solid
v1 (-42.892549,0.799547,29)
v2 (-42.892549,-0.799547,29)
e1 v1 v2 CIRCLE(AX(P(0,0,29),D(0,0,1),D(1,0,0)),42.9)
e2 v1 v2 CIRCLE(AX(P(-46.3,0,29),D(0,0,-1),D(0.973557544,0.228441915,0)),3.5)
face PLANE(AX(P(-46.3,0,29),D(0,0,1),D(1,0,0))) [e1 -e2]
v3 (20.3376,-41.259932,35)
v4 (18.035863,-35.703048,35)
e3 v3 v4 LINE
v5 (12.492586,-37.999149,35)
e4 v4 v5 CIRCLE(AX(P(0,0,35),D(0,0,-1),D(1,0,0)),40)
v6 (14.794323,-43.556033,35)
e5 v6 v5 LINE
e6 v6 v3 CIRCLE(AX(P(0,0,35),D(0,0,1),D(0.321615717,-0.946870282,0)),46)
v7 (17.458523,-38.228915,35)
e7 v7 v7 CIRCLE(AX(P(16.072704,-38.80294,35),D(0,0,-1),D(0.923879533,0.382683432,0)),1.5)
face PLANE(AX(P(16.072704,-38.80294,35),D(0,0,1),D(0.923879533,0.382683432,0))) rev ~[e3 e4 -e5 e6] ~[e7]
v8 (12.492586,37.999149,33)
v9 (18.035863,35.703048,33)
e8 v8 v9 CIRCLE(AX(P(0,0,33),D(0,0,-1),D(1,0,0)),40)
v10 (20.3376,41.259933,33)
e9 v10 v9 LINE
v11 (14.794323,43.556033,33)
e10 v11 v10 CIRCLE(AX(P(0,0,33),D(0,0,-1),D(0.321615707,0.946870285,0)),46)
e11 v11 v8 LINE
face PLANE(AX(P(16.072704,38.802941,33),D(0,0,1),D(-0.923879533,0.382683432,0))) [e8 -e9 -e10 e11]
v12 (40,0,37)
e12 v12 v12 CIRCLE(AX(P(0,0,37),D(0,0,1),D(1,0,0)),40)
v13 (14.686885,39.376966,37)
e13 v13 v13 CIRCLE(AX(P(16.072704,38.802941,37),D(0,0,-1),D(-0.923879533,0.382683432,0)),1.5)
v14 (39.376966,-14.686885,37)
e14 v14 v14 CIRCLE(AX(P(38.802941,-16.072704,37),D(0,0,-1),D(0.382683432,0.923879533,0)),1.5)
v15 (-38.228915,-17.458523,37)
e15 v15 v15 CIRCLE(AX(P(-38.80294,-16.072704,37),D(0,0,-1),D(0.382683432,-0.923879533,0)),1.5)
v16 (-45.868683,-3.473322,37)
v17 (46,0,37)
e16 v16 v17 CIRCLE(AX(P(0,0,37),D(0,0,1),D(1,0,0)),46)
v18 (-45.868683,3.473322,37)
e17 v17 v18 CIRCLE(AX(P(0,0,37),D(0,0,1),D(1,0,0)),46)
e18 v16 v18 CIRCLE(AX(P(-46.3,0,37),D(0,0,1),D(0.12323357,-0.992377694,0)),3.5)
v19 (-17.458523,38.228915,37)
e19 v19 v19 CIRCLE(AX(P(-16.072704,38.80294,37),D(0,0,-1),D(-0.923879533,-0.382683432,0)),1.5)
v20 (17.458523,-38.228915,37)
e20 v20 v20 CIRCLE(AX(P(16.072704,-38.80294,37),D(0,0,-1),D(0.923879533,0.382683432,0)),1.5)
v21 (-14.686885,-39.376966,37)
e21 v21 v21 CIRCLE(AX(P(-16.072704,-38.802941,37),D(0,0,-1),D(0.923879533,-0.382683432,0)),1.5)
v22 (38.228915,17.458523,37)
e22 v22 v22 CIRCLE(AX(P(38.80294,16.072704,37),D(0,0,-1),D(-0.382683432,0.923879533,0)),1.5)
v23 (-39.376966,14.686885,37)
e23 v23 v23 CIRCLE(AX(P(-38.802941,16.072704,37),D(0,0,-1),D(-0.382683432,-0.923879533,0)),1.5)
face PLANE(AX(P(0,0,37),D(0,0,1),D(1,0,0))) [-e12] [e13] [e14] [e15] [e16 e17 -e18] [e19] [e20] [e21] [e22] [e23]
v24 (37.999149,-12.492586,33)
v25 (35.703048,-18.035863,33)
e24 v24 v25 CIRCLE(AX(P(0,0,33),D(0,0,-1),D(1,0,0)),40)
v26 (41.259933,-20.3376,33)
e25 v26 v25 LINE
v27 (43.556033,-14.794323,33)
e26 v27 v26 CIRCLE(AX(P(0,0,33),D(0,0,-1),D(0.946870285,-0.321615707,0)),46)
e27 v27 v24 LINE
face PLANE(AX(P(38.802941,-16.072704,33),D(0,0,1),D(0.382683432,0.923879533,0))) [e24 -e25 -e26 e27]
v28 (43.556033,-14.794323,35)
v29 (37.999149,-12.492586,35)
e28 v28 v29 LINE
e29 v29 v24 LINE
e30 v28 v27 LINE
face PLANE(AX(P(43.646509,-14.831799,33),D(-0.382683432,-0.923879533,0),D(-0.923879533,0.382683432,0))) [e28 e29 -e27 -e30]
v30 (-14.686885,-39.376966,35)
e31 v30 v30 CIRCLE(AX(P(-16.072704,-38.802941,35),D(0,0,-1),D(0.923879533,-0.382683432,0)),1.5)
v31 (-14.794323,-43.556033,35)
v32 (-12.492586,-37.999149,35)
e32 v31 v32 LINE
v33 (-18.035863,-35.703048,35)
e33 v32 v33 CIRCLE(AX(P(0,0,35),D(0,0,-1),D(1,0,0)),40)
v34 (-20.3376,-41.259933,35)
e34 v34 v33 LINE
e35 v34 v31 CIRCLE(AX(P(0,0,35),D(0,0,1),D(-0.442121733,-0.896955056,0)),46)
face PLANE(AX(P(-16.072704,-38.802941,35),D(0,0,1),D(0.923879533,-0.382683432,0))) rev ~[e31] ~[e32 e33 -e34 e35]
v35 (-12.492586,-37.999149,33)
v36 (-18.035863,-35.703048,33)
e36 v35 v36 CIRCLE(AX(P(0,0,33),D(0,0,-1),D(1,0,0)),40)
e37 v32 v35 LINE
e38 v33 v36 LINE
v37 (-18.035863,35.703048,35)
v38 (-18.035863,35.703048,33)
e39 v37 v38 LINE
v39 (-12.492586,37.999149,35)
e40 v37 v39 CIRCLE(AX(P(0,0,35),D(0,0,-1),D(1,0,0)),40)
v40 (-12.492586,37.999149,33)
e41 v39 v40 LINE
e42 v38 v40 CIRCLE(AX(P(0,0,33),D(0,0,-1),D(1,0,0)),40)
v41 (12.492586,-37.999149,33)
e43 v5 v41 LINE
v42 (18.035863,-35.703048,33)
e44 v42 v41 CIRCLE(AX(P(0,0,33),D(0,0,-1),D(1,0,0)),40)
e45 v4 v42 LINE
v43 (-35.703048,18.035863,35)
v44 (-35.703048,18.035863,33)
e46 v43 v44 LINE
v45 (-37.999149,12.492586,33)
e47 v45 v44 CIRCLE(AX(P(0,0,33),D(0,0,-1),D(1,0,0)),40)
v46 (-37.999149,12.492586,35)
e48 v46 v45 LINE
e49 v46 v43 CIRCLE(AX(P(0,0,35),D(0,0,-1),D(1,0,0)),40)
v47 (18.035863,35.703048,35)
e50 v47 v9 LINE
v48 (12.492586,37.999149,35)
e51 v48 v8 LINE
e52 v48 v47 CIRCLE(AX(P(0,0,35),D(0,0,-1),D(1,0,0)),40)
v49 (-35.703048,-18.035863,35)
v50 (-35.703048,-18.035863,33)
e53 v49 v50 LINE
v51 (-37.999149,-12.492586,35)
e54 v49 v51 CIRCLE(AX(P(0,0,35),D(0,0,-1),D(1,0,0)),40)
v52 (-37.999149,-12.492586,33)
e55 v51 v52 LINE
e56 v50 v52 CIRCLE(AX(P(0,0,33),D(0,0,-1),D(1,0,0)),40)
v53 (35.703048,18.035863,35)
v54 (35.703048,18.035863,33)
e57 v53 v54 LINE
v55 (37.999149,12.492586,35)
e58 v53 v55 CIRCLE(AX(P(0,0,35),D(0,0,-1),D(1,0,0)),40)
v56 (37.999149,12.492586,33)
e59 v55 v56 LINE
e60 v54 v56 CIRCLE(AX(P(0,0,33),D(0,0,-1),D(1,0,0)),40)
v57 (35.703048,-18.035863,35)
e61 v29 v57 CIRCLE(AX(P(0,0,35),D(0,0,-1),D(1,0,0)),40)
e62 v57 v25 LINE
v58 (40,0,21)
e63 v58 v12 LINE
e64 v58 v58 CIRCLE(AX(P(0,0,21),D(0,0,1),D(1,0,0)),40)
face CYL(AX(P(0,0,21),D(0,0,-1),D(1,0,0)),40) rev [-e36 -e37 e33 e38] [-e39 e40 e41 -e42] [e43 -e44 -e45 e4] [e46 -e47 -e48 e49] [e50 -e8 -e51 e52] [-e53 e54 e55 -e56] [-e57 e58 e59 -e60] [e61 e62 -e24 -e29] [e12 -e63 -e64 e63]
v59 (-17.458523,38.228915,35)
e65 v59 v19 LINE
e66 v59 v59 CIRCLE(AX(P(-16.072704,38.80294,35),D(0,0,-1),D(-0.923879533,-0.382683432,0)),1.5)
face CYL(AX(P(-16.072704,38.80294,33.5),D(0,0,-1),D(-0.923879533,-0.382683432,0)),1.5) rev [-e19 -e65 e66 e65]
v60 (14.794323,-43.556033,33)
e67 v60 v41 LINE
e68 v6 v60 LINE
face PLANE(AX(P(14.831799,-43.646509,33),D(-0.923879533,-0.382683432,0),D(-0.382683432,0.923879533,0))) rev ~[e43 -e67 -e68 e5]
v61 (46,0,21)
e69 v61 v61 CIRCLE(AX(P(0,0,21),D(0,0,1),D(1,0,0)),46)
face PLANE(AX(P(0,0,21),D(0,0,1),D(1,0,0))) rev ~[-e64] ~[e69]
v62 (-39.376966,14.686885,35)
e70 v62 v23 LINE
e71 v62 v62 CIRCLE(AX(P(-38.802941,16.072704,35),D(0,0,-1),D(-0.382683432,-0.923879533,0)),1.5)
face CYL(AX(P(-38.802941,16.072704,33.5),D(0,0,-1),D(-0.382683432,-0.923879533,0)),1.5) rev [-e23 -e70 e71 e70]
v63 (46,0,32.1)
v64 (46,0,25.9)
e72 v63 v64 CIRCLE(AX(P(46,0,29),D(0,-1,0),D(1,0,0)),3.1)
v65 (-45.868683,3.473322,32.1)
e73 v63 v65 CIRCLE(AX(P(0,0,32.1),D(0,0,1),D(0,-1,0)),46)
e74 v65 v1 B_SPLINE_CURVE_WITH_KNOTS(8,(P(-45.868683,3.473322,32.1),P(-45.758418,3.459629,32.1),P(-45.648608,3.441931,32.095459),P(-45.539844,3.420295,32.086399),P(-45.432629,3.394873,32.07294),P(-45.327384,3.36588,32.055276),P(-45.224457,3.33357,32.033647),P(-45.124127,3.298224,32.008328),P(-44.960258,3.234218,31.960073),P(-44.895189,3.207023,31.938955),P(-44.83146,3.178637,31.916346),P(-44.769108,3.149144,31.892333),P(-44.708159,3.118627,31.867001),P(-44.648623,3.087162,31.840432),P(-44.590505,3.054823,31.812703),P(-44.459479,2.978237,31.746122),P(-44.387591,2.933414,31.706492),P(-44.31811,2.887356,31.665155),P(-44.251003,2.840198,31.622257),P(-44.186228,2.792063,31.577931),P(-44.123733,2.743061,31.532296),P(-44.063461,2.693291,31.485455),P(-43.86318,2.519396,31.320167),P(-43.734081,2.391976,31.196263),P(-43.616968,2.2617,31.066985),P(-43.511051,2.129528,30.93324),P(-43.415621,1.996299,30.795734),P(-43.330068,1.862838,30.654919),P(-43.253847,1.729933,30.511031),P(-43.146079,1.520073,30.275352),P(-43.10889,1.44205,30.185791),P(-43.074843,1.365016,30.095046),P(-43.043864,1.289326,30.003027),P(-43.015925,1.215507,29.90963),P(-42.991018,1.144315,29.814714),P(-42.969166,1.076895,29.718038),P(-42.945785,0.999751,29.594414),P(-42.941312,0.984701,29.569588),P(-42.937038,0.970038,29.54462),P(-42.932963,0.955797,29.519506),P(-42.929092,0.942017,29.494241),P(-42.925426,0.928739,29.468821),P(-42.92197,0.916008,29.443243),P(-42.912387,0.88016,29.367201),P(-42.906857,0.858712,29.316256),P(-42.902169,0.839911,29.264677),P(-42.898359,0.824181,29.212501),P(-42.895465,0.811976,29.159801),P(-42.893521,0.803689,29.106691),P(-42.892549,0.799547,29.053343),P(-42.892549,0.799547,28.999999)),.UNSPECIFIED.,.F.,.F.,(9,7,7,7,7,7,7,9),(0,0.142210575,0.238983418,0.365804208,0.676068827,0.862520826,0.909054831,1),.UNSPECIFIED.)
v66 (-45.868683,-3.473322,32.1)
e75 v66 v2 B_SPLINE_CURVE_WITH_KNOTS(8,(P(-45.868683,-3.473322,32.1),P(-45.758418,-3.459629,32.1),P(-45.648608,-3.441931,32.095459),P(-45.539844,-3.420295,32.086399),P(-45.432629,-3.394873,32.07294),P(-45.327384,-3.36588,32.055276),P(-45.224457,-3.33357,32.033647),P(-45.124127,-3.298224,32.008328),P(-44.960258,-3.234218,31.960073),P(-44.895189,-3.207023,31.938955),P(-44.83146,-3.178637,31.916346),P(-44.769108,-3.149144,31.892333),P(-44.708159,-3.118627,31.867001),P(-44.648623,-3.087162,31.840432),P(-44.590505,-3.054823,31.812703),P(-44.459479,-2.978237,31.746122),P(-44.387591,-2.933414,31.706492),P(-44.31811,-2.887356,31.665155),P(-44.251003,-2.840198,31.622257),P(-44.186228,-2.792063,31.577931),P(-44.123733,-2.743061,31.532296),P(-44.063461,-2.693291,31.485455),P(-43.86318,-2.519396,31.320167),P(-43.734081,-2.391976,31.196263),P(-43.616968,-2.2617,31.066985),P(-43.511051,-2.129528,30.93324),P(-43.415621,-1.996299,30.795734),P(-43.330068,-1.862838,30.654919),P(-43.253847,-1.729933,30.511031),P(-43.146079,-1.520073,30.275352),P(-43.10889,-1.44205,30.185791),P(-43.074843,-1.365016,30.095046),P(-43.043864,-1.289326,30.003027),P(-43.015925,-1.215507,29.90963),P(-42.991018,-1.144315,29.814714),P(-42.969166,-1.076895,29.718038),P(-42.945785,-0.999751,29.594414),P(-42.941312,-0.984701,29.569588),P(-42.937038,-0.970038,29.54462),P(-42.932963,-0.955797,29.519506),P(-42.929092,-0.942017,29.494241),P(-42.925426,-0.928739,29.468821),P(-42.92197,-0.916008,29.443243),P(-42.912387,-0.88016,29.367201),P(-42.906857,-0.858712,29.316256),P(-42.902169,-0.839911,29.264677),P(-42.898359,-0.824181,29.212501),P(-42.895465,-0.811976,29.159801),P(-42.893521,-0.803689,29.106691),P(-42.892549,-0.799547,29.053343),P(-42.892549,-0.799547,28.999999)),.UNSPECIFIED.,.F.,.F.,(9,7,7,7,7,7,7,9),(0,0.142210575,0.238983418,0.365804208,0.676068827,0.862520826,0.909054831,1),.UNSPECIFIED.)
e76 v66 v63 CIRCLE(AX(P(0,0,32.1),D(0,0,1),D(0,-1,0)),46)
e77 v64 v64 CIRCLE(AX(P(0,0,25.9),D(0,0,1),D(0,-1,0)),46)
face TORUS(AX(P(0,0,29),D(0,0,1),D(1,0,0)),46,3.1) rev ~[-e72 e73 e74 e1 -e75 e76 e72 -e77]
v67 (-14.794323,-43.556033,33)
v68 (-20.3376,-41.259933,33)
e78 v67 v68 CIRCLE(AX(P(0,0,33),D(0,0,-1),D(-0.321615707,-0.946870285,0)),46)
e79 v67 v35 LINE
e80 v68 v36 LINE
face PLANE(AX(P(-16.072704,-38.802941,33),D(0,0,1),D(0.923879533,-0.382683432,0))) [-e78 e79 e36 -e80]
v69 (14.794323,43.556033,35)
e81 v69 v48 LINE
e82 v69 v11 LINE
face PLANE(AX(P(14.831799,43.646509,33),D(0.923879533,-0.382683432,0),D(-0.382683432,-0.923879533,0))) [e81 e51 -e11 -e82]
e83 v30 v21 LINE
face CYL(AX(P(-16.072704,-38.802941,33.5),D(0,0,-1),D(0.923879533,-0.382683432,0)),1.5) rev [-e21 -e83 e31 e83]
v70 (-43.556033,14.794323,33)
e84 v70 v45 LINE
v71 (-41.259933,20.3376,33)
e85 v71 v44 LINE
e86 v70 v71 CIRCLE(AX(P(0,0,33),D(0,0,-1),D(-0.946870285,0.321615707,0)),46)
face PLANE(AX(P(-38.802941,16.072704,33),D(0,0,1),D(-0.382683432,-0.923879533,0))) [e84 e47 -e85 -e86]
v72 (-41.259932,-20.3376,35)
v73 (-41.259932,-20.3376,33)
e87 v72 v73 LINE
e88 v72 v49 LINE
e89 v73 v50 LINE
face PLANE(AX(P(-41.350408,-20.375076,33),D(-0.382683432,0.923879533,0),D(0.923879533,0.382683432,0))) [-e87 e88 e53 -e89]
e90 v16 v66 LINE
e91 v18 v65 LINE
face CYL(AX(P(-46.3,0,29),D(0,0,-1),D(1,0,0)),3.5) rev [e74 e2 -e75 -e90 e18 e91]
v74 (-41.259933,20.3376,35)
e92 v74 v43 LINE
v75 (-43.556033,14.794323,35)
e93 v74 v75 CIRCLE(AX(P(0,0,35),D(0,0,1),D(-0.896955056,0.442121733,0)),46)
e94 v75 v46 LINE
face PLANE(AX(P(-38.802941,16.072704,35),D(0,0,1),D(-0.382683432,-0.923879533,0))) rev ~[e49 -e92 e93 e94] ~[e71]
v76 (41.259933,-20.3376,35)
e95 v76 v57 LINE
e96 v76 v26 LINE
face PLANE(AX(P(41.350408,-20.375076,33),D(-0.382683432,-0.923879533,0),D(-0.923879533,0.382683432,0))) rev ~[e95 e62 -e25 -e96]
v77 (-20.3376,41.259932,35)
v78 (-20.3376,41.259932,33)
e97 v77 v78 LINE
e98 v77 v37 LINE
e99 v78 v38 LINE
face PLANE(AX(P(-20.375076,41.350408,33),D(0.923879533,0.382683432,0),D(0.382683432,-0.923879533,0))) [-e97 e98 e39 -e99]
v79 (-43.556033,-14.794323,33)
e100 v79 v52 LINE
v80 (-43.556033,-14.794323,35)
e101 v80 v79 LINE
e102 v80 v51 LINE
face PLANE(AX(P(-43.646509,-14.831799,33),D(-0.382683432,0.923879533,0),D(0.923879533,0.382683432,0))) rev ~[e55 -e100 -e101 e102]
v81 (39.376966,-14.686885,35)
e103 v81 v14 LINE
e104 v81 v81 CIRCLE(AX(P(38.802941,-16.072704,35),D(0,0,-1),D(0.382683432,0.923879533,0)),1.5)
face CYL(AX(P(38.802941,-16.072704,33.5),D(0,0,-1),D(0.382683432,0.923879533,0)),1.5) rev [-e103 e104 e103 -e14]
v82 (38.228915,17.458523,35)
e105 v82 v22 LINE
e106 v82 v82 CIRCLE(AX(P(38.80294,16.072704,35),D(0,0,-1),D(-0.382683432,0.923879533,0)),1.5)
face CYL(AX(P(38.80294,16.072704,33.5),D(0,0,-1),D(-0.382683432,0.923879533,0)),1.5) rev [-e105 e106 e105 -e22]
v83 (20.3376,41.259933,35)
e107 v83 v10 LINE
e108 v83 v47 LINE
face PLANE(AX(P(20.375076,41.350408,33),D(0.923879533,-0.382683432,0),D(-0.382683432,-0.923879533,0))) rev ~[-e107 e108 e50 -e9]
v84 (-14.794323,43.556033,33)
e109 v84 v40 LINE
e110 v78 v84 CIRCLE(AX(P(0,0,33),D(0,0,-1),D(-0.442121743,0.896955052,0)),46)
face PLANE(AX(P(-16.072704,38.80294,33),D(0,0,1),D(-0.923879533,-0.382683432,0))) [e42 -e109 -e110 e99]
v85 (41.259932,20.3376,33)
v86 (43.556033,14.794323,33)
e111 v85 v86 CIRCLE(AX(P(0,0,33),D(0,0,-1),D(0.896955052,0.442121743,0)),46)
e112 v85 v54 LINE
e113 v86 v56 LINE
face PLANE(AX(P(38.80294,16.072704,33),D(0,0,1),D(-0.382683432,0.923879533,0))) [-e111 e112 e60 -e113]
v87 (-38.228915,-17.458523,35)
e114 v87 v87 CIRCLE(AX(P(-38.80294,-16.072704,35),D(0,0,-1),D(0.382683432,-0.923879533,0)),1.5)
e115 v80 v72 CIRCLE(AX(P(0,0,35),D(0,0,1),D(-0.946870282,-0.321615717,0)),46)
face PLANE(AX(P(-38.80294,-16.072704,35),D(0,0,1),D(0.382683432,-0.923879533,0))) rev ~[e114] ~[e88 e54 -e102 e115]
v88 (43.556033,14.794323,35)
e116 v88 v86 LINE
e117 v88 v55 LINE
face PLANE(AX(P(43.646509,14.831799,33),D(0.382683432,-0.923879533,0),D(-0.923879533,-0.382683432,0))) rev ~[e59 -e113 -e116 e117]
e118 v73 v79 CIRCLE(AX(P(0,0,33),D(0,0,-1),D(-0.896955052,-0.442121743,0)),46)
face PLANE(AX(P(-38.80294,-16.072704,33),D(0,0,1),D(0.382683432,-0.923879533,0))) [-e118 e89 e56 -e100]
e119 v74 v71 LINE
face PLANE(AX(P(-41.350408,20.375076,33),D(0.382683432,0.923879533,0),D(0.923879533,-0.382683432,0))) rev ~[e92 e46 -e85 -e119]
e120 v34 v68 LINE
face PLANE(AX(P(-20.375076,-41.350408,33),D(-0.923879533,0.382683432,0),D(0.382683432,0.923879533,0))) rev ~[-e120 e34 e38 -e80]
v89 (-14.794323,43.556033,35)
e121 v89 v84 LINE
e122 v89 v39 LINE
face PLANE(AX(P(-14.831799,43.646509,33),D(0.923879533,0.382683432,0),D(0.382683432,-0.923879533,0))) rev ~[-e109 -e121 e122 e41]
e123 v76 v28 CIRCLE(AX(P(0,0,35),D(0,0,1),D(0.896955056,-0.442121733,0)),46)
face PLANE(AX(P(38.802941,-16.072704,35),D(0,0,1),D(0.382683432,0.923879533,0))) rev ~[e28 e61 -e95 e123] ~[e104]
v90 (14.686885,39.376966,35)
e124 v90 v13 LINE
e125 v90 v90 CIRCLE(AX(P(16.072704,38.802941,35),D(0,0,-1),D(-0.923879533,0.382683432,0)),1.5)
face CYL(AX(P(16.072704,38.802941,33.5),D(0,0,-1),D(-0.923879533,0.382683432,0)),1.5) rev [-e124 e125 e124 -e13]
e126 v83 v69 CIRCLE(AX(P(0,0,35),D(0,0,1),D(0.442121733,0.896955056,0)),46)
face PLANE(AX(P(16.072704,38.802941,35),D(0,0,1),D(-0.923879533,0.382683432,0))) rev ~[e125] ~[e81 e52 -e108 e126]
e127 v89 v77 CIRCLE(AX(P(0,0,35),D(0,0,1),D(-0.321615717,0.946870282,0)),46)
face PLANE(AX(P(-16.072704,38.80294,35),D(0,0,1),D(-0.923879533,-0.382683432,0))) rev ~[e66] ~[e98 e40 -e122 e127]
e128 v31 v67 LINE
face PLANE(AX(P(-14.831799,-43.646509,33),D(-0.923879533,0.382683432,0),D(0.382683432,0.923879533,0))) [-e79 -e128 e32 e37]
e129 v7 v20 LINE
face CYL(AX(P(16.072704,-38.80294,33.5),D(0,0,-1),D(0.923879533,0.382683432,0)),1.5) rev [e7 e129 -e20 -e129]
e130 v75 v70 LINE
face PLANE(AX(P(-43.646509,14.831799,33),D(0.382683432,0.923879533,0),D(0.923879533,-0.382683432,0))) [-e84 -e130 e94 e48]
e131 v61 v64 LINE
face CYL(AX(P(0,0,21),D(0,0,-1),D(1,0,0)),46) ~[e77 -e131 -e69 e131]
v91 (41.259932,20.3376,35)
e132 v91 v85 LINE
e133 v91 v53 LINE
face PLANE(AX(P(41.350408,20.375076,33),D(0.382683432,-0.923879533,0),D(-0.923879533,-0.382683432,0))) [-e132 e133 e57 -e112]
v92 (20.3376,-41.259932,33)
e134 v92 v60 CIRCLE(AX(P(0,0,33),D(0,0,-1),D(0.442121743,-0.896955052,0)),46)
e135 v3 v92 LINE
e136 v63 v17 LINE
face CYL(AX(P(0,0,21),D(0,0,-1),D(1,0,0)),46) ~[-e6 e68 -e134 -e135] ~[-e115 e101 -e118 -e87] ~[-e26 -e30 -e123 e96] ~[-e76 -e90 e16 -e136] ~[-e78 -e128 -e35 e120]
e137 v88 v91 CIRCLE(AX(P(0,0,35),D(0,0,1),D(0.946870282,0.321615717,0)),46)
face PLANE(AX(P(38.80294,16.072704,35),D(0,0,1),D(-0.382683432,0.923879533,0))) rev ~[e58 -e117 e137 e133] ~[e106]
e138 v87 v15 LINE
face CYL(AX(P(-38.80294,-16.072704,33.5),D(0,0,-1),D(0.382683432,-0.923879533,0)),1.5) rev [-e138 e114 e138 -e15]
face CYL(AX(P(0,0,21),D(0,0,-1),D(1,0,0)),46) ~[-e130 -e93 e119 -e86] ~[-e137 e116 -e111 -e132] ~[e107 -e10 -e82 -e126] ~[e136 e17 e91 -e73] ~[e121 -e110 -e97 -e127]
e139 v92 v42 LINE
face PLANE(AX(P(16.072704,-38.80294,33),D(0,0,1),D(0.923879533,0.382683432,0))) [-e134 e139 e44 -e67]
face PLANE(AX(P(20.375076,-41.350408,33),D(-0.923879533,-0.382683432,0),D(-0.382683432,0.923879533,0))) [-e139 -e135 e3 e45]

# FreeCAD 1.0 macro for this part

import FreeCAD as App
import Part
import Sketcher
from FreeCAD import Vector
Q = App.Units.Quantity


def add_polygon(sketch, points):
    """Adds a closed chain of lines whose ends are joined by coincident constraints."""
    first, n = sketch.GeometryCount, len(points)
    for a, b in zip(points, points[1:] + points[:1]):
        sketch.addGeometry(Part.LineSegment(App.Vector(*a, 0), App.Vector(*b, 0)), False)
    for i in range(n):
        sketch.addConstraint(Sketcher.Constraint("Coincident", first + i, 2, first + (i + 1) % n, 1))

doc = App.newDocument("Part")
body = doc.addObject("PartDesign::Body", "Body")

# Sketch on XY plane
sketch1 = body.newObject("Sketcher::SketchObject", "Sketch")
sketch1.AttachmentSupport = (doc.getObject("XY_Plane"), [""])
sketch1.MapMode = "FlatFace"
add_polygon(sketch1, [(0, 8), (0, 0), (6, 0), (6, 8)])  # lines 0-3
sketch1.addConstraint(Sketcher.Constraint("Vertical", 0))
sketch1.addConstraint(Sketcher.Constraint("Horizontal", 1))
sketch1.addConstraint(Sketcher.Constraint("Vertical", 2))
sketch1.addConstraint(Sketcher.Constraint("Horizontal", 3))
sketch1.addConstraint(Sketcher.Constraint("Coincident", 0, 2, -1, 1))
sketch1.addConstraint(Sketcher.Constraint("DistanceX", 1, 1, 1, 2, Q("6 mm")))
sketch1.addConstraint(Sketcher.Constraint("DistanceY", 0, 2, 0, 1, Q("8 mm")))
pad1 = body.newObject("PartDesign::Pad", "Pad")
pad1.Profile = sketch1
pad1.Length = 2
body2 = doc.addObject("PartDesign::Body", "Body001")
doc.recompute()

body.Placement = App.Placement(Vector(30.405592, -34.648232, 33), App.Rotation(Vector(0, 0, 1), 45))
boolean = body2.newObject("PartDesign::Boolean", "Boolean")
boolean.Type = "Fuse"
boolean.addObjects([body])
body3 = doc.addObject("PartDesign::Body", "Body002")

# Sketch on XY plane
sketch2 = body3.newObject("Sketcher::SketchObject", "Sketch001")
sketch2.AttachmentSupport = (doc.getObject("XY_Plane002"), [""])
sketch2.MapMode = "FlatFace"
sketch2.AttachmentOffset = App.Placement(Vector(0, 0, 33), App.Rotation())
add_polygon(sketch2, [(38, -3), (46, -3), (46, 3), (38, 3)])  # lines 0-3
sketch2.addConstraint(Sketcher.Constraint("Horizontal", 0))
sketch2.addConstraint(Sketcher.Constraint("Vertical", 1))
sketch2.addConstraint(Sketcher.Constraint("Horizontal", 2))
sketch2.addConstraint(Sketcher.Constraint("Vertical", 3))
sketch2.addConstraint(Sketcher.Constraint("DistanceX", 0, 1, 0, 2, Q("8 mm")))
sketch2.addConstraint(Sketcher.Constraint("DistanceY", 1, 1, 1, 2, Q("6 mm")))
sketch2.addConstraint(Sketcher.Constraint("DistanceX", -1, 1, 0, 2, Q("46 mm")))
sketch2.addConstraint(Sketcher.Constraint("DistanceY", 0, 2, -1, 1, Q("3 mm")))
pad2 = body3.newObject("PartDesign::Pad", "Pad001")
pad2.Profile = sketch2
pad2.Length = 2
body4 = doc.addObject("PartDesign::Body", "Body003")

# Sketch on XY plane
sketch3 = body4.newObject("Sketcher::SketchObject", "Sketch002")
sketch3.AttachmentSupport = (doc.getObject("XY_Plane003"), [""])
sketch3.MapMode = "FlatFace"
sketch3.AttachmentOffset = App.Placement(Vector(0, 0, 33), App.Rotation())
add_polygon(sketch3, [(-3, -38), (-3, -46), (3, -46), (3, -38)])  # lines 0-3
sketch3.addConstraint(Sketcher.Constraint("Vertical", 0))
sketch3.addConstraint(Sketcher.Constraint("Horizontal", 1))
sketch3.addConstraint(Sketcher.Constraint("Vertical", 2))
sketch3.addConstraint(Sketcher.Constraint("Horizontal", 3))
sketch3.addConstraint(Sketcher.Constraint("DistanceX", 1, 1, 1, 2, Q("6 mm")))
sketch3.addConstraint(Sketcher.Constraint("DistanceY", 0, 2, 0, 1, Q("8 mm")))
sketch3.addConstraint(Sketcher.Constraint("DistanceX", 0, 2, -1, 1, Q("3 mm")))
sketch3.addConstraint(Sketcher.Constraint("DistanceY", 0, 2, -1, 1, Q("46 mm")))
pad3 = body4.newObject("PartDesign::Pad", "Pad002")
pad3.Profile = sketch3
pad3.Length = 2
body5 = doc.addObject("PartDesign::Body", "Body004")

# Sketch on XY plane
sketch4 = body5.newObject("Sketcher::SketchObject", "Sketch003")
sketch4.AttachmentSupport = (doc.getObject("XY_Plane004"), [""])
sketch4.MapMode = "FlatFace"
add_polygon(sketch4, [(0, 8), (0, 0), (6, 0), (6, 8)])  # lines 0-3
sketch4.addConstraint(Sketcher.Constraint("Vertical", 0))
sketch4.addConstraint(Sketcher.Constraint("Horizontal", 1))
sketch4.addConstraint(Sketcher.Constraint("Vertical", 2))
sketch4.addConstraint(Sketcher.Constraint("Horizontal", 3))
sketch4.addConstraint(Sketcher.Constraint("Coincident", 0, 2, -1, 1))
sketch4.addConstraint(Sketcher.Constraint("DistanceX", 1, 1, 1, 2, Q("6 mm")))
sketch4.addConstraint(Sketcher.Constraint("DistanceY", 0, 2, 0, 1, Q("8 mm")))
pad4 = body5.newObject("PartDesign::Pad", "Pad003")
pad4.Profile = sketch4
pad4.Length = 2
body6 = doc.addObject("PartDesign::Body", "Body005")
doc.recompute()

body5.Placement = App.Placement(Vector(34.648232, 30.405592, 33), App.Rotation(Vector(0, 0, 1), 135))
boolean2 = body6.newObject("PartDesign::Boolean", "Boolean001")
boolean2.Type = "Fuse"
boolean2.addObjects([body5])
body7 = doc.addObject("PartDesign::Body", "Body006")

# Sketch on XY plane
sketch5 = body7.newObject("Sketcher::SketchObject", "Sketch004")
sketch5.AttachmentSupport = (doc.getObject("XY_Plane006"), [""])
sketch5.MapMode = "FlatFace"
sketch5.AttachmentOffset = App.Placement(Vector(0, 0, 33), App.Rotation())
add_polygon(sketch5, [(3, 38), (3, 46), (-3, 46), (-3, 38)])  # lines 0-3
sketch5.addConstraint(Sketcher.Constraint("Vertical", 0))
sketch5.addConstraint(Sketcher.Constraint("Horizontal", 1))
sketch5.addConstraint(Sketcher.Constraint("Vertical", 2))
sketch5.addConstraint(Sketcher.Constraint("Horizontal", 3))
sketch5.addConstraint(Sketcher.Constraint("DistanceX", 1, 2, 1, 1, Q("6 mm")))
sketch5.addConstraint(Sketcher.Constraint("DistanceY", 0, 1, 0, 2, Q("8 mm")))
sketch5.addConstraint(Sketcher.Constraint("DistanceX", -1, 1, 0, 2, Q("3 mm")))
sketch5.addConstraint(Sketcher.Constraint("DistanceY", -1, 1, 0, 2, Q("46 mm")))
pad5 = body7.newObject("PartDesign::Pad", "Pad004")
pad5.Profile = sketch5
pad5.Length = 2
body8 = doc.addObject("PartDesign::Body", "Body007")

# Sketch on XY plane
sketch6 = body8.newObject("Sketcher::SketchObject", "Sketch005")
sketch6.AttachmentSupport = (doc.getObject("XY_Plane007"), [""])
sketch6.MapMode = "FlatFace"
add_polygon(sketch6, [(0, 8), (0, 0), (6, 0), (6, 8)])  # lines 0-3
sketch6.addConstraint(Sketcher.Constraint("Vertical", 0))
sketch6.addConstraint(Sketcher.Constraint("Horizontal", 1))
sketch6.addConstraint(Sketcher.Constraint("Vertical", 2))
sketch6.addConstraint(Sketcher.Constraint("Horizontal", 3))
sketch6.addConstraint(Sketcher.Constraint("Coincident", 0, 2, -1, 1))
sketch6.addConstraint(Sketcher.Constraint("DistanceX", 1, 1, 1, 2, Q("6 mm")))
sketch6.addConstraint(Sketcher.Constraint("DistanceY", 0, 2, 0, 1, Q("8 mm")))
pad6 = body8.newObject("PartDesign::Pad", "Pad005")
pad6.Profile = sketch6
pad6.Length = 2
body9 = doc.addObject("PartDesign::Body", "Body008")
doc.recompute()

body8.Placement = App.Placement(Vector(-30.405592, 34.648232, 33), App.Rotation(Vector(0, 0, 1), 225))
boolean3 = body9.newObject("PartDesign::Boolean", "Boolean002")
boolean3.Type = "Fuse"
boolean3.addObjects([body8])
body10 = doc.addObject("PartDesign::Body", "Body009")

# Sketch on XY plane
sketch7 = body10.newObject("Sketcher::SketchObject", "Sketch006")
sketch7.AttachmentSupport = (doc.getObject("XY_Plane009"), [""])
sketch7.MapMode = "FlatFace"
sketch7.AttachmentOffset = App.Placement(Vector(0, 0, 33), App.Rotation())
add_polygon(sketch7, [(-38, 3), (-46, 3), (-46, -3), (-38, -3)])  # lines 0-3
sketch7.addConstraint(Sketcher.Constraint("Horizontal", 0))
sketch7.addConstraint(Sketcher.Constraint("Vertical", 1))
sketch7.addConstraint(Sketcher.Constraint("Horizontal", 2))
sketch7.addConstraint(Sketcher.Constraint("Vertical", 3))
sketch7.addConstraint(Sketcher.Constraint("DistanceX", 0, 2, 0, 1, Q("8 mm")))
sketch7.addConstraint(Sketcher.Constraint("DistanceY", 1, 2, 1, 1, Q("6 mm")))
sketch7.addConstraint(Sketcher.Constraint("DistanceX", 0, 2, -1, 1, Q("46 mm")))
sketch7.addConstraint(Sketcher.Constraint("DistanceY", -1, 1, 0, 2, Q("3 mm")))
pad7 = body10.newObject("PartDesign::Pad", "Pad006")
pad7.Profile = sketch7
pad7.Length = 2
body11 = doc.addObject("PartDesign::Body", "Body010")

# Sketch on XY plane
sketch8 = body11.newObject("Sketcher::SketchObject", "Sketch007")
sketch8.AttachmentSupport = (doc.getObject("XY_Plane010"), [""])
sketch8.MapMode = "FlatFace"
add_polygon(sketch8, [(0, 8), (0, 0), (6, 0), (6, 8)])  # lines 0-3
sketch8.addConstraint(Sketcher.Constraint("Vertical", 0))
sketch8.addConstraint(Sketcher.Constraint("Horizontal", 1))
sketch8.addConstraint(Sketcher.Constraint("Vertical", 2))
sketch8.addConstraint(Sketcher.Constraint("Horizontal", 3))
sketch8.addConstraint(Sketcher.Constraint("Coincident", 0, 2, -1, 1))
sketch8.addConstraint(Sketcher.Constraint("DistanceX", 1, 1, 1, 2, Q("6 mm")))
sketch8.addConstraint(Sketcher.Constraint("DistanceY", 0, 2, 0, 1, Q("8 mm")))
pad8 = body11.newObject("PartDesign::Pad", "Pad007")
pad8.Profile = sketch8
pad8.Length = 2
body12 = doc.addObject("PartDesign::Body", "Body011")
body12.AllowCompound = True
doc.recompute()

body11.Placement = App.Placement(Vector(-34.648232, -30.405592, 33), App.Rotation(Vector(0, 0, -1), 45))
boolean4 = body12.newObject("PartDesign::Boolean", "Boolean003")
boolean4.Type = "Fuse"
boolean4.addObjects([body11])
doc.recompute()

boolean5 = body12.newObject("PartDesign::Boolean", "Boolean004")
boolean5.Type = "Fuse"
boolean5.addObjects([body2])
doc.recompute()

boolean6 = body12.newObject("PartDesign::Boolean", "Boolean005")
boolean6.Type = "Fuse"
boolean6.addObjects([body3])
doc.recompute()

boolean7 = body12.newObject("PartDesign::Boolean", "Boolean006")
boolean7.Type = "Fuse"
boolean7.addObjects([body4])
doc.recompute()

boolean8 = body12.newObject("PartDesign::Boolean", "Boolean007")
boolean8.Type = "Fuse"
boolean8.addObjects([body6])
doc.recompute()

boolean9 = body12.newObject("PartDesign::Boolean", "Boolean008")
boolean9.Type = "Fuse"
boolean9.addObjects([body7])
doc.recompute()

boolean10 = body12.newObject("PartDesign::Boolean", "Boolean009")
boolean10.Type = "Fuse"
boolean10.addObjects([body9])
doc.recompute()

boolean11 = body12.newObject("PartDesign::Boolean", "Boolean010")
boolean11.Type = "Fuse"
boolean11.addObjects([body10])
body13 = doc.addObject("PartDesign::Body", "Body012")
body13.AllowCompound = True
doc.recompute()

body12.Placement = App.Placement(Vector(0, 0, 0), App.Rotation(Vector(0, 0, 1), 22.5))
boolean12 = body13.newObject("PartDesign::Boolean", "Boolean011")
boolean12.Type = "Fuse"
boolean12.addObjects([body12])
body14 = doc.addObject("PartDesign::Body", "Body013")

# Sketch on XY plane
sketch9 = body14.newObject("Sketcher::SketchObject", "Sketch008")
sketch9.AttachmentSupport = (doc.getObject("XY_Plane013"), [""])
sketch9.MapMode = "FlatFace"
sketch9.addGeometry(Part.Circle(Vector(0, 0, 0), Vector(0, 0, 1), 1.5), False)
sketch9.addConstraint(Sketcher.Constraint("Coincident", 0, 3, -1, 1))
sketch9.addConstraint(Sketcher.Constraint("Diameter", 0, Q("3 mm")))
pad9 = body14.newObject("PartDesign::Pad", "Pad008")
pad9.Profile = sketch9
pad9.Length = 12
body15 = doc.addObject("PartDesign::Body", "Body014")
doc.recompute()

body14.Placement = App.Placement(Vector(29.698485, -29.698485, 33.5), App.Rotation(Vector(0, 0, 1), 45))
boolean13 = body15.newObject("PartDesign::Boolean", "Boolean012")
boolean13.Type = "Fuse"
boolean13.addObjects([body14])
body16 = doc.addObject("PartDesign::Body", "Body015")

# Sketch on XY plane
sketch10 = body16.newObject("Sketcher::SketchObject", "Sketch009")
sketch10.AttachmentSupport = (doc.getObject("XY_Plane015"), [""])
sketch10.MapMode = "FlatFace"
sketch10.AttachmentOffset = App.Placement(Vector(0, 0, 33.5), App.Rotation())
sketch10.addGeometry(Part.Circle(Vector(42, 0, 0), Vector(0, 0, 1), 1.5), False)
sketch10.addConstraint(Sketcher.Constraint("PointOnObject", 0, 3, -1))
sketch10.addConstraint(Sketcher.Constraint("Diameter", 0, Q("3 mm")))
sketch10.addConstraint(Sketcher.Constraint("DistanceX", -1, 1, 0, 3, Q("42 mm")))
pad10 = body16.newObject("PartDesign::Pad", "Pad009")
pad10.Profile = sketch10
pad10.Length = 12
body17 = doc.addObject("PartDesign::Body", "Body016")

# Sketch on XY plane
sketch11 = body17.newObject("Sketcher::SketchObject", "Sketch010")
sketch11.AttachmentSupport = (doc.getObject("XY_Plane016"), [""])
sketch11.MapMode = "FlatFace"
sketch11.addGeometry(Part.Circle(Vector(0, 0, 0), Vector(0, 0, 1), 1.5), False)
sketch11.addConstraint(Sketcher.Constraint("Coincident", 0, 3, -1, 1))
sketch11.addConstraint(Sketcher.Constraint("Diameter", 0, Q("3 mm")))
pad11 = body17.newObject("PartDesign::Pad", "Pad010")
pad11.Profile = sketch11
pad11.Length = 12
body18 = doc.addObject("PartDesign::Body", "Body017")
doc.recompute()

body17.Placement = App.Placement(Vector(29.698485, 29.698485, 33.5), App.Rotation(Vector(0, 0, 1), 135))
boolean14 = body18.newObject("PartDesign::Boolean", "Boolean013")
boolean14.Type = "Fuse"
boolean14.addObjects([body17])
body19 = doc.addObject("PartDesign::Body", "Body018")

# Sketch on XY plane
sketch12 = body19.newObject("Sketcher::SketchObject", "Sketch011")
sketch12.AttachmentSupport = (doc.getObject("XY_Plane018"), [""])
sketch12.MapMode = "FlatFace"
sketch12.AttachmentOffset = App.Placement(Vector(0, 0, 33.5), App.Rotation())
sketch12.addGeometry(Part.Circle(Vector(0, 42, 0), Vector(0, 0, 1), 1.5), False)
sketch12.addConstraint(Sketcher.Constraint("PointOnObject", 0, 3, -2))
sketch12.addConstraint(Sketcher.Constraint("Diameter", 0, Q("3 mm")))
sketch12.addConstraint(Sketcher.Constraint("DistanceY", -1, 1, 0, 3, Q("42 mm")))
pad12 = body19.newObject("PartDesign::Pad", "Pad011")
pad12.Profile = sketch12
pad12.Length = 12
body20 = doc.addObject("PartDesign::Body", "Body019")

# Sketch on XY plane
sketch13 = body20.newObject("Sketcher::SketchObject", "Sketch012")
sketch13.AttachmentSupport = (doc.getObject("XY_Plane019"), [""])
sketch13.MapMode = "FlatFace"
sketch13.addGeometry(Part.Circle(Vector(0, 0, 0), Vector(0, 0, 1), 1.5), False)
sketch13.addConstraint(Sketcher.Constraint("Coincident", 0, 3, -1, 1))
sketch13.addConstraint(Sketcher.Constraint("Diameter", 0, Q("3 mm")))
pad13 = body20.newObject("PartDesign::Pad", "Pad012")
pad13.Profile = sketch13
pad13.Length = 12
body21 = doc.addObject("PartDesign::Body", "Body020")
doc.recompute()

body20.Placement = App.Placement(Vector(-29.698485, 29.698485, 33.5), App.Rotation(Vector(0, 0, 1), 225))
boolean15 = body21.newObject("PartDesign::Boolean", "Boolean014")
boolean15.Type = "Fuse"
boolean15.addObjects([body20])
body22 = doc.addObject("PartDesign::Body", "Body021")

# Sketch on XY plane
sketch14 = body22.newObject("Sketcher::SketchObject", "Sketch013")
sketch14.AttachmentSupport = (doc.getObject("XY_Plane021"), [""])
sketch14.MapMode = "FlatFace"
sketch14.AttachmentOffset = App.Placement(Vector(0, 0, 33.5), App.Rotation())
sketch14.addGeometry(Part.Circle(Vector(-42, 0, 0), Vector(0, 0, 1), 1.5), False)
sketch14.addConstraint(Sketcher.Constraint("PointOnObject", 0, 3, -1))
sketch14.addConstraint(Sketcher.Constraint("Diameter", 0, Q("3 mm")))
sketch14.addConstraint(Sketcher.Constraint("DistanceX", 0, 3, -1, 1, Q("42 mm")))
pad14 = body22.newObject("PartDesign::Pad", "Pad013")
pad14.Profile = sketch14
pad14.Length = 12
body23 = doc.addObject("PartDesign::Body", "Body022")

# Sketch on XY plane
sketch15 = body23.newObject("Sketcher::SketchObject", "Sketch014")
sketch15.AttachmentSupport = (doc.getObject("XY_Plane022"), [""])
sketch15.MapMode = "FlatFace"
sketch15.addGeometry(Part.Circle(Vector(0, 0, 0), Vector(0, 0, 1), 1.5), False)
sketch15.addConstraint(Sketcher.Constraint("Coincident", 0, 3, -1, 1))
sketch15.addConstraint(Sketcher.Constraint("Diameter", 0, Q("3 mm")))
pad15 = body23.newObject("PartDesign::Pad", "Pad014")
pad15.Profile = sketch15
pad15.Length = 12
body24 = doc.addObject("PartDesign::Body", "Body023")
doc.recompute()

body23.Placement = App.Placement(Vector(-29.698485, -29.698485, 33.5), App.Rotation(Vector(0, 0, -1), 45))
boolean16 = body24.newObject("PartDesign::Boolean", "Boolean015")
boolean16.Type = "Fuse"
boolean16.addObjects([body23])
body25 = doc.addObject("PartDesign::Body", "Body024")
body25.AllowCompound = True

# Sketch on XY plane
sketch16 = body25.newObject("Sketcher::SketchObject", "Sketch015")
sketch16.AttachmentSupport = (doc.getObject("XY_Plane024"), [""])
sketch16.MapMode = "FlatFace"
sketch16.AttachmentOffset = App.Placement(Vector(0, 0, 33.5), App.Rotation())
sketch16.addGeometry(Part.Circle(Vector(0, -42, 0), Vector(0, 0, 1), 1.5), False)
sketch16.addConstraint(Sketcher.Constraint("PointOnObject", 0, 3, -2))
sketch16.addConstraint(Sketcher.Constraint("Diameter", 0, Q("3 mm")))
sketch16.addConstraint(Sketcher.Constraint("DistanceY", 0, 3, -1, 1, Q("42 mm")))
pad16 = body25.newObject("PartDesign::Pad", "Pad015")
pad16.Profile = sketch16
pad16.Length = 12
doc.recompute()

boolean17 = body25.newObject("PartDesign::Boolean", "Boolean016")
boolean17.Type = "Fuse"
boolean17.addObjects([body15])
doc.recompute()

boolean18 = body25.newObject("PartDesign::Boolean", "Boolean017")
boolean18.Type = "Fuse"
boolean18.addObjects([body16])
doc.recompute()

boolean19 = body25.newObject("PartDesign::Boolean", "Boolean018")
boolean19.Type = "Fuse"
boolean19.addObjects([body18])
doc.recompute()

boolean20 = body25.newObject("PartDesign::Boolean", "Boolean019")
boolean20.Type = "Fuse"
boolean20.addObjects([body19])
doc.recompute()

boolean21 = body25.newObject("PartDesign::Boolean", "Boolean020")
boolean21.Type = "Fuse"
boolean21.addObjects([body21])
doc.recompute()

boolean22 = body25.newObject("PartDesign::Boolean", "Boolean021")
boolean22.Type = "Fuse"
boolean22.addObjects([body22])
doc.recompute()

boolean23 = body25.newObject("PartDesign::Boolean", "Boolean022")
boolean23.Type = "Fuse"
boolean23.addObjects([body24])
body26 = doc.addObject("PartDesign::Body", "Body025")
body26.AllowCompound = True
doc.recompute()

body25.Placement = App.Placement(Vector(0, 0, 0), App.Rotation(Vector(0, 0, 1), 22.5))
boolean24 = body26.newObject("PartDesign::Boolean", "Boolean023")
boolean24.Type = "Fuse"
boolean24.addObjects([body25])
body27 = doc.addObject("PartDesign::Body", "Body026")

# Sketch on XY plane
sketch17 = body27.newObject("Sketcher::SketchObject", "Sketch016")
sketch17.AttachmentSupport = (doc.getObject("XY_Plane026"), [""])
sketch17.MapMode = "FlatFace"
sketch17.AttachmentOffset = App.Placement(Vector(0, 0, 29), App.Rotation())
sketch17.addGeometry(Part.Circle(Vector(-46.3, 0, 0), Vector(0, 0, 1), 3.5), False)
sketch17.addConstraint(Sketcher.Constraint("PointOnObject", 0, 3, -1))
sketch17.addConstraint(Sketcher.Constraint("Diameter", 0, Q("7 mm")))
sketch17.addConstraint(Sketcher.Constraint("DistanceX", 0, 3, -1, 1, Q("46.3 mm")))
pad17 = body27.newObject("PartDesign::Pad", "Pad016")
pad17.Profile = sketch17
pad17.Length = 20
body28 = doc.addObject("PartDesign::Body", "Body027")

# Sketch on XZ plane
sketch18 = body28.newObject("Sketcher::SketchObject", "Sketch017")
sketch18.AttachmentSupport = (doc.getObject("XZ_Plane027"), [""])
sketch18.MapMode = "FlatFace"
sketch18.addGeometry(Part.Circle(Vector(46, 29, 0), Vector(0, 0, 1), 3.1), False)
sketch18.addConstraint(Sketcher.Constraint("Diameter", 0, Q("6.2 mm")))
sketch18.addConstraint(Sketcher.Constraint("DistanceX", -1, 1, 0, 3, Q("46 mm")))
sketch18.addConstraint(Sketcher.Constraint("DistanceY", -1, 1, 0, 3, Q("29 mm")))
revolution = body28.newObject("PartDesign::Revolution", "Revolution")
revolution.Profile = sketch18
revolution.ReferenceAxis = (sketch18, ["V_Axis"])
revolution.Angle = 360
body29 = doc.addObject("PartDesign::Body", "Body028")

# Sketch on XY plane
sketch19 = body29.newObject("Sketcher::SketchObject", "Sketch018")
sketch19.AttachmentSupport = (doc.getObject("XY_Plane028"), [""])
sketch19.MapMode = "FlatFace"
sketch19.AttachmentOffset = App.Placement(Vector(0, 0, 21), App.Rotation())
sketch19.addGeometry(Part.Circle(Vector(0, 0, 0), Vector(0, 0, 1), 46), False)
sketch19.addGeometry(Part.Circle(Vector(0, 0, 0), Vector(0, 0, 1), 40), False)
sketch19.addConstraint(Sketcher.Constraint("Coincident", 0, 3, -1, 1))
sketch19.addConstraint(Sketcher.Constraint("Coincident", 1, 3, -1, 1))
sketch19.addConstraint(Sketcher.Constraint("Diameter", 0, Q("92 mm")))
sketch19.addConstraint(Sketcher.Constraint("Diameter", 1, Q("80 mm")))
pad18 = body29.newObject("PartDesign::Pad", "Pad017")
pad18.Profile = sketch19
pad18.Length = 16
doc.recompute()

boolean25 = body29.newObject("PartDesign::Boolean", "Boolean024")
boolean25.Type = "Cut"
boolean25.addObjects([body28])
doc.recompute()

boolean26 = body29.newObject("PartDesign::Boolean", "Boolean025")
boolean26.Type = "Cut"
boolean26.addObjects([body27])
doc.recompute()

boolean27 = body29.newObject("PartDesign::Boolean", "Boolean026")
boolean27.Type = "Cut"
boolean27.addObjects([body26])
doc.recompute()

boolean28 = body29.newObject("PartDesign::Boolean", "Boolean027")
boolean28.Type = "Cut"
boolean28.addObjects([body13])

doc.recompute()
